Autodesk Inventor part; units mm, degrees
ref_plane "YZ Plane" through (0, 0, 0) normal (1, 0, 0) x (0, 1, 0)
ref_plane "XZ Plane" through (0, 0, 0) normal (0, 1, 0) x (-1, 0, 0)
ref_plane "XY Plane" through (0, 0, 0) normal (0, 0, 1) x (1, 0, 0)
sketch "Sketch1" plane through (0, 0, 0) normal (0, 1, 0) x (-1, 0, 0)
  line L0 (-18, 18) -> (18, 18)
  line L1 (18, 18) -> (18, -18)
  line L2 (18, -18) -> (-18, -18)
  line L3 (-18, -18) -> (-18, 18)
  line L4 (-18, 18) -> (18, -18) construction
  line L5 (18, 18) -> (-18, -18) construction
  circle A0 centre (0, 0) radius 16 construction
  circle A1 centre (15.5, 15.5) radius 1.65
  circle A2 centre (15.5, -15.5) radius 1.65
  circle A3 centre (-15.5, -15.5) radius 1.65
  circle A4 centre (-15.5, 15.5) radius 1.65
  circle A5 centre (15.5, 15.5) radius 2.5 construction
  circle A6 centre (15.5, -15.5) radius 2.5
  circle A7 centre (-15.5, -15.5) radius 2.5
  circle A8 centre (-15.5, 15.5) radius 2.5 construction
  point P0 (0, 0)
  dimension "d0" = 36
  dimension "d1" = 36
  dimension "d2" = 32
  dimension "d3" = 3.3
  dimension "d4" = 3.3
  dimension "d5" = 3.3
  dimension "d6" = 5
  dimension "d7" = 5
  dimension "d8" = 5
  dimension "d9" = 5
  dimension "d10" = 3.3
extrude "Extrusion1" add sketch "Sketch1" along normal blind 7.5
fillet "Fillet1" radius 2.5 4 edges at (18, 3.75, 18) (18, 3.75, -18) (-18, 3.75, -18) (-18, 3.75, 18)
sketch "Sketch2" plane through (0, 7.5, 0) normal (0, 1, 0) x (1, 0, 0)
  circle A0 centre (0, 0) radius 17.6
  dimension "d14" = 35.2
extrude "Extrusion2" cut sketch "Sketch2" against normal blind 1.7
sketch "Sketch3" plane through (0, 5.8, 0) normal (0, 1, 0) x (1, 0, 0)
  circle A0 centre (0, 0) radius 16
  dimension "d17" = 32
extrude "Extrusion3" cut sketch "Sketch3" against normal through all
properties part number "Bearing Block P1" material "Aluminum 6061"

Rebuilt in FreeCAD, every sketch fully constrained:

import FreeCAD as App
import Part
import Sketcher
Q = App.Units.Quantity


def edges_at(feature, points):
    """Names of the edges that pass closest to the given points."""
    edges = feature.Shape.Edges
    near = lambda p: min(range(len(edges)), key=lambda i: edges[i].distToShape(Part.Vertex(*p))[0])
    return sorted({f"Edge{near(p) + 1}" for p in points})


def add_polygon(sketch, points):
    """Adds a closed chain of lines whose ends are joined by coincident constraints."""
    first, n = sketch.GeometryCount, len(points)
    for a, b in zip(points, points[1:] + points[:1]):
        sketch.addGeometry(Part.LineSegment(App.Vector(*a, 0), App.Vector(*b, 0)), False)
    for i in range(n):
        sketch.addConstraint(Sketcher.Constraint("Coincident", first + i, 2, first + (i + 1) % n, 1))

doc = App.newDocument("Part")
body = doc.addObject("PartDesign::Body", "Body")

# Sketch on XZ plane
sketch1 = body.newObject("Sketcher::SketchObject", "Sketch")
sketch1.AttachmentSupport = (doc.getObject("XZ_Plane"), [""])
sketch1.MapMode = "FlatFace"
add_polygon(sketch1, [(-18, 18), (18, 18), (18, -18), (-18, -18)])  # lines 0-3
sketch1.addGeometry(Part.Circle(App.Vector(15.5, 15.5, 0), App.Vector(0, 0, 1), 1.6), False)  # 4
sketch1.addGeometry(Part.Circle(App.Vector(-15.5, 15.5, 0), App.Vector(0, 0, 1), 1.6), False)  # 5
sketch1.addGeometry(Part.Circle(App.Vector(-15.5, -15.5, 0), App.Vector(0, 0, 1), 1.6), False)  # 6
sketch1.addGeometry(Part.Circle(App.Vector(15.5, -15.5, 0), App.Vector(0, 0, 1), 1.6), False)  # 7
sketch1.addConstraint([
    Sketcher.Constraint("Horizontal", 0),
    Sketcher.Constraint("Vertical", 1),
    Sketcher.Constraint("Horizontal", 2),
    Sketcher.Constraint("Vertical", 3),
    Sketcher.Constraint("Equal", 4, 5),
    Sketcher.Constraint("Equal", 5, 6),
    Sketcher.Constraint("Equal", 6, 7),
    Sketcher.Constraint("Symmetric", 4, 3, 6, 3, -1, 1),
    Sketcher.Constraint("Symmetric", 5, 3, 7, 3, -1, 1),
    Sketcher.Constraint("Symmetric", 0, 2, 2, 2, -1, 1),
    Sketcher.Constraint("Symmetric", 4, 3, 5, 3, -2),
    Sketcher.Constraint("Equal", 2, 1),
    Sketcher.Constraint("Diameter", 4, Q("3.3 mm")),
    Sketcher.Constraint("DistanceX", 0, 1, 0, 2, Q("36 mm")),
    Sketcher.Constraint("DistanceX", 5, 3, 4, 3, Q("31 mm")),
    Sketcher.Constraint("DistanceY", 6, 3, 5, 3, Q("31 mm")),
])
pad1 = body.newObject("PartDesign::Pad", "Pad")
pad1.Profile = sketch1
pad1.Length = 7.5
pad1.Reversed = True
doc.recompute()

fillet = body.newObject("PartDesign::Fillet", "Fillet")
fillet.Base = (pad1, edges_at(pad1, [
    (18, 3.75, 18),
    (18, 3.75, -18),
    (-18, 3.75, -18),
    (-18, 3.75, 18),
]))
fillet.Radius = 2.5

# Sketch on XZ plane
sketch2 = body.newObject("Sketcher::SketchObject", "Sketch001")
sketch2.AttachmentSupport = (doc.getObject("XZ_Plane"), [""])
sketch2.MapMode = "FlatFace"
sketch2.AttachmentOffset = App.Placement(App.Vector(0, 0, -7.5), App.Rotation())
sketch2.addGeometry(Part.Circle(App.Vector(0, 0, 0), App.Vector(0, 0, 1), 18), False)
sketch2.addConstraint([
    Sketcher.Constraint("Coincident", 0, 3, -1, 1),
    Sketcher.Constraint("Diameter", 0, Q("35.2 mm")),
])
pocket1 = body.newObject("PartDesign::Pocket", "Pocket")
pocket1.Profile = sketch2
pocket1.Length = 1.7
pocket1.Reversed = True

# Sketch on XZ plane
sketch3 = body.newObject("Sketcher::SketchObject", "Sketch002")
sketch3.AttachmentSupport = (doc.getObject("XZ_Plane"), [""])
sketch3.MapMode = "FlatFace"
sketch3.AttachmentOffset = App.Placement(App.Vector(0, 0, -5.8), App.Rotation())
sketch3.addGeometry(Part.Circle(App.Vector(0, 0, 0), App.Vector(0, 0, 1), 16), False)
sketch3.addConstraint([
    Sketcher.Constraint("Coincident", 0, 3, -1, 1),
    Sketcher.Constraint("Diameter", 0, Q("32 mm")),
])
pocket2 = body.newObject("PartDesign::Pocket", "Pocket001")
pocket2.Profile = sketch3
pocket2.Type = "ThroughAll"
pocket2.Reversed = True

doc.recompute()
